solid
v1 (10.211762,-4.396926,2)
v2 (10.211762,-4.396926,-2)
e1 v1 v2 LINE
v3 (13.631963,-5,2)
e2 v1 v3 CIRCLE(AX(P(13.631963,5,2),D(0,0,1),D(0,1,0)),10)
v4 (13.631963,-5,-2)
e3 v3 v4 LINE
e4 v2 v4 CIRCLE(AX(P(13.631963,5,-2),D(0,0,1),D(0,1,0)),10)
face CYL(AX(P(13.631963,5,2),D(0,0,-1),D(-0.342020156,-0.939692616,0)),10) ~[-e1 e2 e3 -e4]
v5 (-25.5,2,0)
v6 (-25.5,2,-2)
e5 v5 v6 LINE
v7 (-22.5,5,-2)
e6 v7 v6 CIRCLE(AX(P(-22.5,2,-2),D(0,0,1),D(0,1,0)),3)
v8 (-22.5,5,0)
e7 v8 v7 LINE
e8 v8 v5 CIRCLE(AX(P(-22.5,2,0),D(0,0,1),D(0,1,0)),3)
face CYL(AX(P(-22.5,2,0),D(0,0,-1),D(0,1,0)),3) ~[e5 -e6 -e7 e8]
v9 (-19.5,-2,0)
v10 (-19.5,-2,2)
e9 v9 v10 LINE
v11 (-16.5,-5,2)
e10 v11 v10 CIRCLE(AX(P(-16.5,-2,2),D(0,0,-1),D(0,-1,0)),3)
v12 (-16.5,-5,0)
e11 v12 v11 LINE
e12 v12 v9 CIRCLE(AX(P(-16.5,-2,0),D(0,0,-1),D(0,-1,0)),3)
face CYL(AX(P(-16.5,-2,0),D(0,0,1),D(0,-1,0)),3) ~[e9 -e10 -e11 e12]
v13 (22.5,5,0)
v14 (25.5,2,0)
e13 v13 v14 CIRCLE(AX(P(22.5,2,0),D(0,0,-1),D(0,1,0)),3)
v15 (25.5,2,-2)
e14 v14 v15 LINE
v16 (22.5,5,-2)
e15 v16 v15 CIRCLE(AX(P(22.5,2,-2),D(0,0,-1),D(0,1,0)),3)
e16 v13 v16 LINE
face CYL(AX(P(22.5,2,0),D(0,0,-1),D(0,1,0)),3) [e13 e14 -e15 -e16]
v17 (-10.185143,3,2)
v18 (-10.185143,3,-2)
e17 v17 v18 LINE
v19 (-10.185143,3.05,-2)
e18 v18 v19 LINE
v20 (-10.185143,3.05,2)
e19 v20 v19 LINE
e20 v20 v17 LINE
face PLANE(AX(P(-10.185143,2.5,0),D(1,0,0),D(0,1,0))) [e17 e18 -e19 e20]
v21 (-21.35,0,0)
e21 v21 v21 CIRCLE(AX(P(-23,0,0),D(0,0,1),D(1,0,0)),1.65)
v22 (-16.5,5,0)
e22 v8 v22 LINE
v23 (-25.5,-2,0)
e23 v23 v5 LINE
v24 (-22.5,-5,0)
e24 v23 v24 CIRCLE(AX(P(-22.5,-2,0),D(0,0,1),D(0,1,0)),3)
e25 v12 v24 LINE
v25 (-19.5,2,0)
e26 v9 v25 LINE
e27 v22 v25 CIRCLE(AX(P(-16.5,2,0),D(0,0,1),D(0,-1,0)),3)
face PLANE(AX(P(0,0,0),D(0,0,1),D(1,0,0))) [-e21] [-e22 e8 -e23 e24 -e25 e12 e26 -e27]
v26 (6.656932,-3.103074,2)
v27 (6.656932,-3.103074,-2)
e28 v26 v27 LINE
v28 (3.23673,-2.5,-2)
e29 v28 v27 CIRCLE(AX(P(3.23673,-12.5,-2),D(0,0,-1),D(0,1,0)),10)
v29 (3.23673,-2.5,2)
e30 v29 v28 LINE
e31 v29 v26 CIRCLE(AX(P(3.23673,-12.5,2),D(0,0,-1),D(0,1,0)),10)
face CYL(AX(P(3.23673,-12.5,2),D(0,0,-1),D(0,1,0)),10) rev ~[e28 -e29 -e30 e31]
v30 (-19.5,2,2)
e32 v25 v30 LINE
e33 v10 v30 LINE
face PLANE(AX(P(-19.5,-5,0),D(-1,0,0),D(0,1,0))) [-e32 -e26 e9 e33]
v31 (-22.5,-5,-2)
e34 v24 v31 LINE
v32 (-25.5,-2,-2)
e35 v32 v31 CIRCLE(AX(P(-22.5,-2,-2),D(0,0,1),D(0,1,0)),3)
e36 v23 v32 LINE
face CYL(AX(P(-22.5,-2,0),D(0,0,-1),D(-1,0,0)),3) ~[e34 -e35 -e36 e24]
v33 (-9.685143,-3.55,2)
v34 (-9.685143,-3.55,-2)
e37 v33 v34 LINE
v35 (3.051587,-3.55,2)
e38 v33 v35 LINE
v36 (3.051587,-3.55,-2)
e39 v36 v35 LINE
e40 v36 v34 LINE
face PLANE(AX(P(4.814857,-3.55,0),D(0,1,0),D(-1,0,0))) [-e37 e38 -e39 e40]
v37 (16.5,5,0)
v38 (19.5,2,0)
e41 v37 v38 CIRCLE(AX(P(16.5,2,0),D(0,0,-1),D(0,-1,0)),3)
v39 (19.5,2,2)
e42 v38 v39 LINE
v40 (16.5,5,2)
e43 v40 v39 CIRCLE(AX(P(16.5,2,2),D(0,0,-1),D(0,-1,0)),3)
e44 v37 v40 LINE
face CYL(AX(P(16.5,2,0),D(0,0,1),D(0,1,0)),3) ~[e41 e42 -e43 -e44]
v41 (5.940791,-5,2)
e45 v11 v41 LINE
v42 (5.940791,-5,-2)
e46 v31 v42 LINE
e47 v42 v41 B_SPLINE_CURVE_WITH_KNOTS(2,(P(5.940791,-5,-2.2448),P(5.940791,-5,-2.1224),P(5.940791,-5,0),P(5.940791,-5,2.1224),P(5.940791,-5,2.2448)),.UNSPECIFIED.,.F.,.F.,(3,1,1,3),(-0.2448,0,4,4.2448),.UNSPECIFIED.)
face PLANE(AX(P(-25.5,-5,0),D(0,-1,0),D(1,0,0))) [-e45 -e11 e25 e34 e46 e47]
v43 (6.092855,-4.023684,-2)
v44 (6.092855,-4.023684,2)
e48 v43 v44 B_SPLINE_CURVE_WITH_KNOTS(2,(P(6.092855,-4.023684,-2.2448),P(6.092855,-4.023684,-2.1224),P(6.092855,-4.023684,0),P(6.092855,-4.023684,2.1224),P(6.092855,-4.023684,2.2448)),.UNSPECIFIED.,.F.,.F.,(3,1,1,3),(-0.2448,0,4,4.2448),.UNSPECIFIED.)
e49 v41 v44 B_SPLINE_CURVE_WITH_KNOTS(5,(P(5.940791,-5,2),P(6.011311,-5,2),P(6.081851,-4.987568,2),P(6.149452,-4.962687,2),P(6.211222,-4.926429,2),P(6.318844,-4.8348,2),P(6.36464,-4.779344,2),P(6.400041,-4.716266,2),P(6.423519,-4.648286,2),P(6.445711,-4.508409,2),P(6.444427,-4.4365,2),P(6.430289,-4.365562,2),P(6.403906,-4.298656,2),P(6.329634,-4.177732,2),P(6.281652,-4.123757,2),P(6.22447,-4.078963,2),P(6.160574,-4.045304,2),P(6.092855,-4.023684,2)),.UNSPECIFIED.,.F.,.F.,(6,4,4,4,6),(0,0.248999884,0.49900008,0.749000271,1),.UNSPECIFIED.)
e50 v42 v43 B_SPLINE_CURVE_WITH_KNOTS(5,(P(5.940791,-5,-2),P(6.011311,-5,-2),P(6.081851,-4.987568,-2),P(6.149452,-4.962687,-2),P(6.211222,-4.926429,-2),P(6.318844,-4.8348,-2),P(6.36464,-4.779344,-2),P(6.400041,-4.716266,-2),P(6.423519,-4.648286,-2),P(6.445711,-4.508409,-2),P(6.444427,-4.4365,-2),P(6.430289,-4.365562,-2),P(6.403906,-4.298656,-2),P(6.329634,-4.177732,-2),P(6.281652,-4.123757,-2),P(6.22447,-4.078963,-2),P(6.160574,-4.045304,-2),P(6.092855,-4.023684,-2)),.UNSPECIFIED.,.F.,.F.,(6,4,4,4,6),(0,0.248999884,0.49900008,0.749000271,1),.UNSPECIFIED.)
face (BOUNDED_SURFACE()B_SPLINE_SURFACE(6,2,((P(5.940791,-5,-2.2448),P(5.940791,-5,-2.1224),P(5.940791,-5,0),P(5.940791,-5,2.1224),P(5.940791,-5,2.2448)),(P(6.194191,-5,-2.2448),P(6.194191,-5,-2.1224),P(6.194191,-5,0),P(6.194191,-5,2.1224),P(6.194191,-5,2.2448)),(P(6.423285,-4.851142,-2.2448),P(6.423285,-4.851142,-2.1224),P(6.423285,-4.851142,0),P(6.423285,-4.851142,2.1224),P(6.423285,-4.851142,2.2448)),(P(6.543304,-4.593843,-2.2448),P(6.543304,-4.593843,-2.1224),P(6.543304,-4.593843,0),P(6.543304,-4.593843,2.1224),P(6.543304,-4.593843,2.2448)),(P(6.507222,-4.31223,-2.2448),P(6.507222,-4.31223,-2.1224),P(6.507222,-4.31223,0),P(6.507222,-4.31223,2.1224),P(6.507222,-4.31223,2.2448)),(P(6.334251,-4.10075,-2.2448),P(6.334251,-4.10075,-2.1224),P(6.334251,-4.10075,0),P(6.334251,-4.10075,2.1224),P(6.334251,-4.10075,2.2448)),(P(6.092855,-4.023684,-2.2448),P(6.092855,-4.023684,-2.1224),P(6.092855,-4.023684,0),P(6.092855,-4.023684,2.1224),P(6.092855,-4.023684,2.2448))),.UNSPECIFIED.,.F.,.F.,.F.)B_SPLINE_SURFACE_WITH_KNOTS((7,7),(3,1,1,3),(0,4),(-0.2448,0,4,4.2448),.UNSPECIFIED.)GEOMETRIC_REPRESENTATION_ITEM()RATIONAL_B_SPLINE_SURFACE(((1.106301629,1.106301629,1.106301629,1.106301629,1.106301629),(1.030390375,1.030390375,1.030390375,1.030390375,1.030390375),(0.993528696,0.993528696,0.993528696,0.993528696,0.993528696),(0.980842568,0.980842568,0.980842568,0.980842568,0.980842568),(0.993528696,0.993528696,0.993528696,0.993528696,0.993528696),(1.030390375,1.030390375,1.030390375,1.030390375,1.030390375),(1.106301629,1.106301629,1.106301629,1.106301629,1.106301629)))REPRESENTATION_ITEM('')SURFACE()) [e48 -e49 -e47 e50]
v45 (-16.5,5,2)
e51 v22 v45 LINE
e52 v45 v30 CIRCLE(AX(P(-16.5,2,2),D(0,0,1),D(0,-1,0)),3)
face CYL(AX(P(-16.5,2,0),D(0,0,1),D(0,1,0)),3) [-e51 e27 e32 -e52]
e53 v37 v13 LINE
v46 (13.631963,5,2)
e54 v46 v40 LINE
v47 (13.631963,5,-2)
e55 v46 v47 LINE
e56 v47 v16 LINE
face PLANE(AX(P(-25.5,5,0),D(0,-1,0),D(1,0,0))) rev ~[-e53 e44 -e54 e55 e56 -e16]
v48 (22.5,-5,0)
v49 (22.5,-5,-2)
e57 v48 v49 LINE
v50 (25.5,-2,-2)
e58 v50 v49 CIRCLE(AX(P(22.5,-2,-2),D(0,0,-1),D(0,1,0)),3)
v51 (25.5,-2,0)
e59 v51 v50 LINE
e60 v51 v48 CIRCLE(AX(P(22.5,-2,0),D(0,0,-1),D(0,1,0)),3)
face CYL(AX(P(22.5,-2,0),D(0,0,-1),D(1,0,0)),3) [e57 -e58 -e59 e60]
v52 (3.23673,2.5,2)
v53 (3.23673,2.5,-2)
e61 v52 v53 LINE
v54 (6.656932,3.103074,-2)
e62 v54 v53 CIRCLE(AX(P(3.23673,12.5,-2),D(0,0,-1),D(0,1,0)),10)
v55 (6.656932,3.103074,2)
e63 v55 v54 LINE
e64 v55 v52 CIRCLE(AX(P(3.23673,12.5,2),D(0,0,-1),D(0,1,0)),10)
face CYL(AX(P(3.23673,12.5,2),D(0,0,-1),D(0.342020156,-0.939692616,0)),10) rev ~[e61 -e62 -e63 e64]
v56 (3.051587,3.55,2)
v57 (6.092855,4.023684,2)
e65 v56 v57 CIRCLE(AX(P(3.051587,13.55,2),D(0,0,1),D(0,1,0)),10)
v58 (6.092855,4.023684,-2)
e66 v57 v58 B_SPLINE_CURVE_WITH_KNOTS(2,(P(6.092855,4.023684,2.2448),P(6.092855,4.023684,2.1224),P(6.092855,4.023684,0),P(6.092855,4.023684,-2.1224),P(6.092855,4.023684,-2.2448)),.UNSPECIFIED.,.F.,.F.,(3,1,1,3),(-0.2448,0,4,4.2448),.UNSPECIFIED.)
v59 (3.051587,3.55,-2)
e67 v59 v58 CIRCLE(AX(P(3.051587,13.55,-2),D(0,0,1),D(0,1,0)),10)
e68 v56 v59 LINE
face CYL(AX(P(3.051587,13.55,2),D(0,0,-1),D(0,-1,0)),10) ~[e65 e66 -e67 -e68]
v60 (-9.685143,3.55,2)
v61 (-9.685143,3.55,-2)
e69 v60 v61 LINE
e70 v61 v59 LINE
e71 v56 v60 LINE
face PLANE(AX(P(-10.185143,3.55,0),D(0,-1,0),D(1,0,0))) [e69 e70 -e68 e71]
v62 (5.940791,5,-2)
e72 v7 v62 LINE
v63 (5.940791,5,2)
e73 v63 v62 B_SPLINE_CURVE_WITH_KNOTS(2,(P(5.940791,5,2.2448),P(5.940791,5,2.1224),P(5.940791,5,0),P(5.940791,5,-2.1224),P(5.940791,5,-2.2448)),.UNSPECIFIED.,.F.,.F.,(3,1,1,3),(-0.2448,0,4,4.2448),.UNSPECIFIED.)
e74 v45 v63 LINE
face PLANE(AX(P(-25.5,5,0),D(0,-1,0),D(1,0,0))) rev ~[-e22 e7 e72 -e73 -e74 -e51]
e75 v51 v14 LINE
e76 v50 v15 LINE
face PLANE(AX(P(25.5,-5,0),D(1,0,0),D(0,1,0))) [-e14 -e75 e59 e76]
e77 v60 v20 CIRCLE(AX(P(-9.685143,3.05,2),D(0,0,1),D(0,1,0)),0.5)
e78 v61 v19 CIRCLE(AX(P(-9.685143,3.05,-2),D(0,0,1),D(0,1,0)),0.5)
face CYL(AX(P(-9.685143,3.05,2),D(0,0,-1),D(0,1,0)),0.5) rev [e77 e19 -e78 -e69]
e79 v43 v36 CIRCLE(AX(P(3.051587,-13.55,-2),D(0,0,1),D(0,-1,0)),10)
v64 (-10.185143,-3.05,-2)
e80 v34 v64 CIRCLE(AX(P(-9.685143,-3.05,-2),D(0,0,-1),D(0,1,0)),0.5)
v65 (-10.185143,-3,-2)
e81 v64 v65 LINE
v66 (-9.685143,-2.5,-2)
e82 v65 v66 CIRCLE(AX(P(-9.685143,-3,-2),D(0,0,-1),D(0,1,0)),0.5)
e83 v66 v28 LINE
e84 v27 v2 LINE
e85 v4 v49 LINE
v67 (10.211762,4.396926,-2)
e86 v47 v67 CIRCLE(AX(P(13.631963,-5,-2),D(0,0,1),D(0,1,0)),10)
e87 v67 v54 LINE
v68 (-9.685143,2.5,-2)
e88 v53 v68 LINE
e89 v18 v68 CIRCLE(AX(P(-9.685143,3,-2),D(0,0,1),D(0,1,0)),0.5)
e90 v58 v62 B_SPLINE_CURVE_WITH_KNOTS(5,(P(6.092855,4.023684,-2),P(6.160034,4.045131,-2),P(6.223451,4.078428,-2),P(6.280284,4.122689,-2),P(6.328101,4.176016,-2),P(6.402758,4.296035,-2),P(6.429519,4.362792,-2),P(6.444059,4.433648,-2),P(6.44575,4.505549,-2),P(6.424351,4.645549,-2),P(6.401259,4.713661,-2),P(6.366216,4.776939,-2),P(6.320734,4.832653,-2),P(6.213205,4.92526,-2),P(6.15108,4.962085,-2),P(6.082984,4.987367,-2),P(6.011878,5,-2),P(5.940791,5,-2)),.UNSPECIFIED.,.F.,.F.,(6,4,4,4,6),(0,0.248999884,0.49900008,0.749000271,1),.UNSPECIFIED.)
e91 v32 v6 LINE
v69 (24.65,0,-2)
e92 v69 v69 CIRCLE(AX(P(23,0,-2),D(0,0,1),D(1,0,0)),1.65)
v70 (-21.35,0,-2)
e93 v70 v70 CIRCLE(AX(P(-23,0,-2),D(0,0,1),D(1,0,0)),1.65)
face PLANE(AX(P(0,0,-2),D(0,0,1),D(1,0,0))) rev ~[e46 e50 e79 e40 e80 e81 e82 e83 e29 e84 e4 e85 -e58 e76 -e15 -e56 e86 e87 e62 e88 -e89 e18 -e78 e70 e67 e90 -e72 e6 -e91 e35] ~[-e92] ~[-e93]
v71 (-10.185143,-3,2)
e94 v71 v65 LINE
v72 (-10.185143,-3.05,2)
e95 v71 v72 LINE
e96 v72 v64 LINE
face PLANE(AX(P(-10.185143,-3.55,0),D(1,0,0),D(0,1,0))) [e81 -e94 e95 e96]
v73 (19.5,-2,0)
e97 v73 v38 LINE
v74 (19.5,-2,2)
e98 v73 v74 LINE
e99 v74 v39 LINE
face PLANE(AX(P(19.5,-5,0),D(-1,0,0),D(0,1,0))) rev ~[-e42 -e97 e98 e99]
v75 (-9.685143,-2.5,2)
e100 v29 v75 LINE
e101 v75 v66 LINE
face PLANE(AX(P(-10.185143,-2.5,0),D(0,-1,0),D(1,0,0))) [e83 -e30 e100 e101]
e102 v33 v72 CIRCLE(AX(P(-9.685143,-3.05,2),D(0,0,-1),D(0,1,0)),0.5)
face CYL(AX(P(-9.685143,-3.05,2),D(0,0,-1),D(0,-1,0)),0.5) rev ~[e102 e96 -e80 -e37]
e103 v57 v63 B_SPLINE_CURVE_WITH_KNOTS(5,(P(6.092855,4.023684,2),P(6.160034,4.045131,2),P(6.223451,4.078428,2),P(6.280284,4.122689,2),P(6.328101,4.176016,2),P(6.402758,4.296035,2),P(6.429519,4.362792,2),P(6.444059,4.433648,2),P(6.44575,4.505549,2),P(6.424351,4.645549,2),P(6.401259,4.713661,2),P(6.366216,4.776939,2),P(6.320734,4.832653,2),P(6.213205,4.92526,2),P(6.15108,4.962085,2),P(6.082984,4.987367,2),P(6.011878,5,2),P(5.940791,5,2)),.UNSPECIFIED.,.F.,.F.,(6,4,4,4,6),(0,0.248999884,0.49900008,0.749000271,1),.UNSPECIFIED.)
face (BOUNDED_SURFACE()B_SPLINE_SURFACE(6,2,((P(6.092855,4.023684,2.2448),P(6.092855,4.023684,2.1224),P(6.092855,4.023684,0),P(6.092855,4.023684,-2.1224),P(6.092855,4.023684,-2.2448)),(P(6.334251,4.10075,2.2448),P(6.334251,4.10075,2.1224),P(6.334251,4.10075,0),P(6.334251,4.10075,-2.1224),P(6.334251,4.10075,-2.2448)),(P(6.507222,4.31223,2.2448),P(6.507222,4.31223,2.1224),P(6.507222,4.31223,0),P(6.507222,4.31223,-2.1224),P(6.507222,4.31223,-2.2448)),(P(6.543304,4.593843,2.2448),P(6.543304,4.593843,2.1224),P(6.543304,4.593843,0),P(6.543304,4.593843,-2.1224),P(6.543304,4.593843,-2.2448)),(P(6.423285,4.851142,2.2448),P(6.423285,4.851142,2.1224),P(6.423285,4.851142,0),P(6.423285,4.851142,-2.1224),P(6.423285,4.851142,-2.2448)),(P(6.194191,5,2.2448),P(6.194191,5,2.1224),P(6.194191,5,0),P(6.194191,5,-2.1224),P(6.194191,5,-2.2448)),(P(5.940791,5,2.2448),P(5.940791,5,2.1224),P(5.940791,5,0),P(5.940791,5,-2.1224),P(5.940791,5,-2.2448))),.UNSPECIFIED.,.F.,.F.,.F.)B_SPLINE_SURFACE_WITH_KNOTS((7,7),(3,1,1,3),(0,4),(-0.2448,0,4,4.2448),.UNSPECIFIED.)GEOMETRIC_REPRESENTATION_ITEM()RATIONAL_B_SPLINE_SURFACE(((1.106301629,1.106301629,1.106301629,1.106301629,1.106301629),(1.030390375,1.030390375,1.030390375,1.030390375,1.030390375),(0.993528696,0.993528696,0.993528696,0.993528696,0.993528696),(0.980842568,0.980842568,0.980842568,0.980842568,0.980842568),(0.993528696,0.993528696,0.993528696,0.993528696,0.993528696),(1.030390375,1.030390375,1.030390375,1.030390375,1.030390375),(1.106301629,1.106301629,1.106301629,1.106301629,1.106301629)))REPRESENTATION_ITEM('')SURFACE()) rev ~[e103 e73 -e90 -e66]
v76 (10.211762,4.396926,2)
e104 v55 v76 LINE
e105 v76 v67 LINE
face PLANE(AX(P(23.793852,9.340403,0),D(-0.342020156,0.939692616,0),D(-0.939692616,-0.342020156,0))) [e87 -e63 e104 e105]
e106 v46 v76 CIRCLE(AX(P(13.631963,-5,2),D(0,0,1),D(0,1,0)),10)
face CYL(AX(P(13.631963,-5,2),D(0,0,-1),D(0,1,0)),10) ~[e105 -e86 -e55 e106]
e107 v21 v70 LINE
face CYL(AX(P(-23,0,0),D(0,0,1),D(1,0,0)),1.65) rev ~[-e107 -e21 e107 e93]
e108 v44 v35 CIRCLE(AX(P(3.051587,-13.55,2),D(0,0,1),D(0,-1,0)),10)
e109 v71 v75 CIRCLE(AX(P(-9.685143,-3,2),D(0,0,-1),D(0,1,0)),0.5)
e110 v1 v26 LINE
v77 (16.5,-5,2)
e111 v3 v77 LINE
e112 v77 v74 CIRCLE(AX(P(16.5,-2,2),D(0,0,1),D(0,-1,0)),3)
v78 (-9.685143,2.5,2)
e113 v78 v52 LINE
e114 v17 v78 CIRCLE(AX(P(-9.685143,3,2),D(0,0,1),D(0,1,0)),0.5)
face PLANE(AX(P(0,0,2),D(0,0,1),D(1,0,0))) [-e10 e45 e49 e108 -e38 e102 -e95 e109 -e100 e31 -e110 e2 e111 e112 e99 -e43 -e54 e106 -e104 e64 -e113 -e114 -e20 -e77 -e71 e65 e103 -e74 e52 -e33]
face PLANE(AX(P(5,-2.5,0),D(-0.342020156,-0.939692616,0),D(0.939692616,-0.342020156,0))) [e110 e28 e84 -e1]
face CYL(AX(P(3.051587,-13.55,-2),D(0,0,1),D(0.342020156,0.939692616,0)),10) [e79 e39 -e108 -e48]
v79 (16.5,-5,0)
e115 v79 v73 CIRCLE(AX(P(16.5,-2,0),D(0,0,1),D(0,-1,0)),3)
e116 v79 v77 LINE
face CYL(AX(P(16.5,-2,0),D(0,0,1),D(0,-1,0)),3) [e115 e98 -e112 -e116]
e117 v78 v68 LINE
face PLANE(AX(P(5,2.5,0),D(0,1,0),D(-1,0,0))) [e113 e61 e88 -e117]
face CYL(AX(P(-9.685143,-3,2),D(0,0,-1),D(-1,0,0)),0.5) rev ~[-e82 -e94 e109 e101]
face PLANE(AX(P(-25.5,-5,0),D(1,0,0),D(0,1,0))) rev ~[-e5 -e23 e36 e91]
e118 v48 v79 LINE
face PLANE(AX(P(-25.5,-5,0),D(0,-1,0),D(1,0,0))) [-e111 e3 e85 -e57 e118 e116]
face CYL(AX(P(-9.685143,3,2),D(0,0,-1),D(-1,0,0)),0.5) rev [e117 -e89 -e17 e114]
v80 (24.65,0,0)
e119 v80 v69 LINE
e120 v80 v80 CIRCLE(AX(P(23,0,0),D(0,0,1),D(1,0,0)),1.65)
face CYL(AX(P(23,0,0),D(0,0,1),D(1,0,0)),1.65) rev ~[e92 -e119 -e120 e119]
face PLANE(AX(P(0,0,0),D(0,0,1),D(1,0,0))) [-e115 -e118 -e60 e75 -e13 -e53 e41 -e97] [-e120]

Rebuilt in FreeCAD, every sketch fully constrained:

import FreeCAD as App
import Part
import Sketcher
from FreeCAD import Vector
Q = App.Units.Quantity


def edges_at(feature, points):
    """Names of the edges that pass closest to the given points."""
    edges = feature.Shape.Edges
    near = lambda p: min(range(len(edges)), key=lambda i: edges[i].distToShape(Part.Vertex(*p))[0])
    return sorted({f"Edge{near(p) + 1}" for p in points})


def add_polygon(sketch, points):
    """Adds a closed chain of lines whose ends are joined by coincident constraints."""
    first, n = sketch.GeometryCount, len(points)
    for a, b in zip(points, points[1:] + points[:1]):
        sketch.addGeometry(Part.LineSegment(App.Vector(*a, 0), App.Vector(*b, 0)), False)
    for i in range(n):
        sketch.addConstraint(Sketcher.Constraint("Coincident", first + i, 2, first + (i + 1) % n, 1))

doc = App.newDocument("Part")
body = doc.addObject("PartDesign::Body", "Body")

sketch1 = doc.addObject("Sketcher::SketchObject", "Sketch")
body.addObject(sketch1)
sketch1.AttachmentSupport = (doc.XY_Plane, [""])
sketch1.MapMode = "FlatFace"
add_polygon(sketch1, [(-25.5, 5), (-25.5, -5), (25.5, -5), (25.5, 5)])
sketch1.addGeometry(Part.Circle(Vector(-23, 0, 0), Vector(0, 0, 1), 1.6), False)
sketch1.addGeometry(Part.Circle(Vector(23, 0, 0), Vector(0, 0, 1), 1.6), False)
sketch1.addConstraint([
    Sketcher.Constraint("Vertical", 0),
    Sketcher.Constraint("Horizontal", 1),
    Sketcher.Constraint("Vertical", 2),
    Sketcher.Constraint("Horizontal", 3),
    Sketcher.Constraint("Equal", 4, 5),
    Sketcher.Constraint("Symmetric", 4, 3, 5, 3, -1, 1),
    Sketcher.Constraint("Symmetric", 0, 2, 2, 2, -1, 1),
    Sketcher.Constraint("PointOnObject", 4, 3, -1),
    Sketcher.Constraint("Diameter", 4, 3.3),
    Sketcher.Constraint("DistanceX", 1, 1, 1, 2, 51.0),
    Sketcher.Constraint("DistanceY", 0, 2, 0, 1, 10.0),
    Sketcher.Constraint("DistanceX", 4, 3, -1, 1, 23.0),
])
pad1 = doc.addObject("PartDesign::Pad", "Pad")
body.addObject(pad1)
pad1.Profile = sketch1
pad1.Length = 2
pad1.Reversed = True

sketch2 = doc.addObject("Sketcher::SketchObject", "Sketch001")
body.addObject(sketch2)
sketch2.AttachmentSupport = (doc.XY_Plane, [""])
sketch2.MapMode = "FlatFace"
add_polygon(sketch2, [(-20, 5), (-20, -5), (20, -5), (20, 5)])
sketch2.addConstraint([
    Sketcher.Constraint("Vertical", 0),
    Sketcher.Constraint("Horizontal", 1),
    Sketcher.Constraint("Vertical", 2),
    Sketcher.Constraint("Horizontal", 3),
    Sketcher.Constraint("Symmetric", 0, 2, 2, 2, -1, 1),
    Sketcher.Constraint("DistanceX", 1, 1, 1, 2, 39.0),
    Sketcher.Constraint("DistanceY", 0, 2, 0, 1, 10.0),
])
pad2 = doc.addObject("PartDesign::Pad", "Pad001")
body.addObject(pad2)
pad2.Profile = sketch2
pad2.Length = 2

sketch3 = doc.addObject("Sketcher::SketchObject", "Sketch002")
body.addObject(sketch3)
sketch3.AttachmentSupport = (doc.XY_Plane, [""])
sketch3.MapMode = "FlatFace"
add_polygon(sketch3, [(4.8, 3.5), (-10.2, 3.5), (-10.2, 2.5), (5, 2.5), (23.8, 9.3), (23.6, 10.4)])
add_polygon(sketch3, [(5, -2.5), (-10.2, -2.5), (-10.2, -3.5), (4.8, -3.5), (23.6, -10.4), (23.8, -9.3)])
sketch3.addConstraint([
    Sketcher.Constraint("Horizontal", 0),
    Sketcher.Constraint("Vertical", 1),
    Sketcher.Constraint("Horizontal", 2),
    Sketcher.Constraint("Horizontal", 6),
    Sketcher.Constraint("Vertical", 7),
    Sketcher.Constraint("Horizontal", 8),
    Sketcher.Constraint("Symmetric", 1, 2, 6, 2, -1),
    Sketcher.Constraint("Symmetric", 5, 2, 8, 2, -1),
    Sketcher.Constraint("Symmetric", 4, 2, 9, 2, -1),
    Sketcher.Constraint("Symmetric", 3, 2, 10, 2, -1),
    Sketcher.Constraint("Parallel", 3, 5),
    Sketcher.Constraint("Parallel", 9, 11),
    Sketcher.Constraint("Equal", 3, 5),
    Sketcher.Constraint("DistanceX", 0, 2, 0, 1, 15.0),
    Sketcher.Constraint("Angle", 3, Q("20.000001 deg")),
    Sketcher.Constraint("Angle", 4, Q("99.999983 deg")),
    Sketcher.Constraint("Distance", 3, 20.0),
    Sketcher.Constraint("DistanceX", -1, 1, 2, 2, 5.0),
    Sketcher.Constraint("DistanceY", 6, 2, 1, 2, 5.0),
    Sketcher.Constraint("DistanceY", 1, 2, 1, 1, 1.05),
])
pocket1 = doc.addObject("PartDesign::Pocket", "Pocket")
body.addObject(pocket1)
pocket1.Profile = sketch3
pocket1.Type = "ThroughAll"
pocket1.Midplane = True
doc.recompute()

fillet = doc.addObject("PartDesign::Fillet", "Fillet")
body.addObject(fillet)
fillet.Base = (pocket1, edges_at(pocket1, [
    (4.815, -3.55, 0),
    (5, -2.5, 0),
    (5, 2.5, 0),
    (4.815, 3.55, 0),
    (11.869, -5, 0),
    (11.869, 5, 0),
]))
fillet.Radius = 10
doc.recompute()

fillet2 = doc.addObject("PartDesign::Fillet", "Fillet001")
body.addObject(fillet2)
fillet2.Base = (fillet, edges_at(fillet, [
    (8.799, -5, 0),
    (8.799, 5, 0),
    (-10.185, -3.55, 0),
    (-10.185, -2.5, 0),
    (-10.185, 2.5, 0),
    (-10.185, 3.55, 0),
]))
fillet2.Radius = 0.5
doc.recompute()

fillet3 = doc.addObject("PartDesign::Fillet", "Fillet002")
body.addObject(fillet3)
fillet3.Base = (fillet2, edges_at(fillet2, [
    (-25.5, -5, -1),
    (-25.5, 5, -1),
    (25.5, 5, -1),
    (25.5, -5, -1),
    (19.5, 5, 1),
    (19.5, -5, 1),
    (-19.5, 5, 1),
    (-19.5, -5, 1),
]))
fillet3.Radius = 3

doc.recompute()
